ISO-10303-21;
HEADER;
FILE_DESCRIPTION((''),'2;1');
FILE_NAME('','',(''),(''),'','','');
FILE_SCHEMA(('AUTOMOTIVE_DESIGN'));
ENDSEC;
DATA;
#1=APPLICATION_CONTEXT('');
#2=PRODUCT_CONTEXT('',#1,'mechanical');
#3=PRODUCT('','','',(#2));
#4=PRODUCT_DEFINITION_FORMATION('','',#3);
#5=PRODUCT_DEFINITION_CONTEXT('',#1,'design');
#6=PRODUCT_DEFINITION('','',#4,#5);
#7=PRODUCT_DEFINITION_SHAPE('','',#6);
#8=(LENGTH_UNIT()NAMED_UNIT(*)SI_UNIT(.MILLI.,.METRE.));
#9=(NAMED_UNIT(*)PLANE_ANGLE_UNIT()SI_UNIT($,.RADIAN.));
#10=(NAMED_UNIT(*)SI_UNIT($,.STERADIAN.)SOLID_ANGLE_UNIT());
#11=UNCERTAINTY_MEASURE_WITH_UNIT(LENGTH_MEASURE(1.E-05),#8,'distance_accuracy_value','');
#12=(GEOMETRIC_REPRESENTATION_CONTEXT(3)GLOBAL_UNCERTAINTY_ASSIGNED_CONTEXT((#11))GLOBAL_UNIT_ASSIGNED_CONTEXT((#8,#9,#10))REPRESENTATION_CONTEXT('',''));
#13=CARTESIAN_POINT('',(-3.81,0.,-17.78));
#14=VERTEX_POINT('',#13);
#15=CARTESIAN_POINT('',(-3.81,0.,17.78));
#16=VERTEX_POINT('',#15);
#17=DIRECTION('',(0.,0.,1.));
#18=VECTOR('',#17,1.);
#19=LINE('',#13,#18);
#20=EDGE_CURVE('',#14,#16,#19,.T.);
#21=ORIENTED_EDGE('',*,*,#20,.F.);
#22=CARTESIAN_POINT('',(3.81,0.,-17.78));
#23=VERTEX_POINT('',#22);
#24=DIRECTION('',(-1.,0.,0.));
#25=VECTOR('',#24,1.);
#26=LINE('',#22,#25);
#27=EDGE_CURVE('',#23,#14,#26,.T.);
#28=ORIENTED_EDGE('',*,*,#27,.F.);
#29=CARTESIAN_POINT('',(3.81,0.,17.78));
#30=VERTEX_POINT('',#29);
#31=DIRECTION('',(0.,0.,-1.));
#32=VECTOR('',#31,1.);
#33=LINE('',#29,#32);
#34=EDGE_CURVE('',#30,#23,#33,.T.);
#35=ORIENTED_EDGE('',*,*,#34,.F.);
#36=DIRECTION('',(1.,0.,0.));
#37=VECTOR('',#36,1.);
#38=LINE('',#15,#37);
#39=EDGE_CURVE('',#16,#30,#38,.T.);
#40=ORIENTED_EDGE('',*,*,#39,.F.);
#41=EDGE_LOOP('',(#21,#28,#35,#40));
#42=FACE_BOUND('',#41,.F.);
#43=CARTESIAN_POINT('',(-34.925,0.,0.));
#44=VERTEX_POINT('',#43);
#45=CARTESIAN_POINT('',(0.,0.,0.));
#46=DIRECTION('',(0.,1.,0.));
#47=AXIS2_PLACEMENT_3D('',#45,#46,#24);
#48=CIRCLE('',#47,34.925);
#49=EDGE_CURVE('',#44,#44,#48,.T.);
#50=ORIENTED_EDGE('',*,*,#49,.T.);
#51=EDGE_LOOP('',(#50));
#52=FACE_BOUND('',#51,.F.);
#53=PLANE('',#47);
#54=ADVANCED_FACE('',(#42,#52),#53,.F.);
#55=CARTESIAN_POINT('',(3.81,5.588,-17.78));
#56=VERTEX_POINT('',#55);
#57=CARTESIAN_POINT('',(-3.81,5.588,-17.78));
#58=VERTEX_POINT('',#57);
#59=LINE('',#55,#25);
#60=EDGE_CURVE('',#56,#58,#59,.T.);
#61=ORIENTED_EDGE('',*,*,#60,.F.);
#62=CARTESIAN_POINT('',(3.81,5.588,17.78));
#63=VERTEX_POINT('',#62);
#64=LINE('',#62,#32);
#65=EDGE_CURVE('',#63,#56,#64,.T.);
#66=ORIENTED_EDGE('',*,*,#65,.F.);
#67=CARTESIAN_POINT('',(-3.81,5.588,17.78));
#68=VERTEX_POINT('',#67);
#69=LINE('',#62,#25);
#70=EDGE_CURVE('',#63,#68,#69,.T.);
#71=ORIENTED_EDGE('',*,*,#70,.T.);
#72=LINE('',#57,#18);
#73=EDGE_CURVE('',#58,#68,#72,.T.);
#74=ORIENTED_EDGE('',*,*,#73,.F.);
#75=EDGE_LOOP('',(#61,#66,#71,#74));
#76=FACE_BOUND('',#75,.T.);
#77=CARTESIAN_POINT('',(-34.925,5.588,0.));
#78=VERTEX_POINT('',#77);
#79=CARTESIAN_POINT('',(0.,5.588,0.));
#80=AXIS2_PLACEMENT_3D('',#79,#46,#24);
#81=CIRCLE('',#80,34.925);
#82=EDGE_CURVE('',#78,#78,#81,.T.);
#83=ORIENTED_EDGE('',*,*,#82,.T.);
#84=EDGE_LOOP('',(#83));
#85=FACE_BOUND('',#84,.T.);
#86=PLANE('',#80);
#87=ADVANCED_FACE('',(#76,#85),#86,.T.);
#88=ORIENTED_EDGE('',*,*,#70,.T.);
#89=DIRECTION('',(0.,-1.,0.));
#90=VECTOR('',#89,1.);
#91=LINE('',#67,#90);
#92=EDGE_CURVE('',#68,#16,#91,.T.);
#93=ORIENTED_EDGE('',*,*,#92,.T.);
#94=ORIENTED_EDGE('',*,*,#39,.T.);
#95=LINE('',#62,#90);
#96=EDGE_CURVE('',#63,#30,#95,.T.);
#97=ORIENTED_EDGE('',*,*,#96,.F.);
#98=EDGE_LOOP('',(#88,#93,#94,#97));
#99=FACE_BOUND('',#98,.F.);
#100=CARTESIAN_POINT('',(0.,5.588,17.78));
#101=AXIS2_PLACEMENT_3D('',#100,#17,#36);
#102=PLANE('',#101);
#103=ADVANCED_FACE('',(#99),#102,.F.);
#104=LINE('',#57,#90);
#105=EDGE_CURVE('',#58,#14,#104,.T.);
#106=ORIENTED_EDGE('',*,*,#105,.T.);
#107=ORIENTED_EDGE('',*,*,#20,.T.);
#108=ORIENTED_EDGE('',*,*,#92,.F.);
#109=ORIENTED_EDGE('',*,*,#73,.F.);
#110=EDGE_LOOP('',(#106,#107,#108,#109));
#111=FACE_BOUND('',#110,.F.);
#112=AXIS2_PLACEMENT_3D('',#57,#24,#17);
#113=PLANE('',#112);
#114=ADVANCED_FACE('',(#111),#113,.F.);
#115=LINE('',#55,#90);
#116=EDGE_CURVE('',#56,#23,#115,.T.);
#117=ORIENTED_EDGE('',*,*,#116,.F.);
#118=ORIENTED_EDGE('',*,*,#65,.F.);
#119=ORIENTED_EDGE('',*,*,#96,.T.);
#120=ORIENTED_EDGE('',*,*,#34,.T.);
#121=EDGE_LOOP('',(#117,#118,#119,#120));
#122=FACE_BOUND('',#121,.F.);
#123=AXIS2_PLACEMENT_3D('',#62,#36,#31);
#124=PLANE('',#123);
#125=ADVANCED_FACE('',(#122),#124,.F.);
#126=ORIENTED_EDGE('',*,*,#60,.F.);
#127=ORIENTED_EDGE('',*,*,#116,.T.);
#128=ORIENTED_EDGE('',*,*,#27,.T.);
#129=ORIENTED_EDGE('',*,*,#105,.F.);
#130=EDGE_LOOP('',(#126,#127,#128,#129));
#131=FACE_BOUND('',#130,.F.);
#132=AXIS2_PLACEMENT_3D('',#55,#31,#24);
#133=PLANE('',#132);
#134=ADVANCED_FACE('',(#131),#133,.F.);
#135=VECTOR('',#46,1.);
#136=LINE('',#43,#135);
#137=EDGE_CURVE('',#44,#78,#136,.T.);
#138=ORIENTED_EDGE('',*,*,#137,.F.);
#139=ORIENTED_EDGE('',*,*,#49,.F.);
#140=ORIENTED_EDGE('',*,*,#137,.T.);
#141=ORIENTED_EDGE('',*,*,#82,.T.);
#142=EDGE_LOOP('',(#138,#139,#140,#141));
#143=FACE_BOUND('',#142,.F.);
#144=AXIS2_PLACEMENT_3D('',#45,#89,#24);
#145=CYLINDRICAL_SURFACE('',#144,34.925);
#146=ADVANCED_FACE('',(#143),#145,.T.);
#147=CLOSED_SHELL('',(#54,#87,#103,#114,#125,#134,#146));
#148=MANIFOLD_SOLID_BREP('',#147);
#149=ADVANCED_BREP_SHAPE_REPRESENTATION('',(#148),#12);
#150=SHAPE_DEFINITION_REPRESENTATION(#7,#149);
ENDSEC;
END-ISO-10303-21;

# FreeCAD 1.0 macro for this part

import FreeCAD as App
import Part
import Sketcher
from FreeCAD import Vector
Q = App.Units.Quantity

doc = App.newDocument("Part")
body = doc.addObject("PartDesign::Body", "Body")

# Sketch on XZ plane
sketch1 = body.newObject("Sketcher::SketchObject", "Sketch")
sketch1.AttachmentSupport = (doc.getObject("XZ_Plane"), [""])
sketch1.MapMode = "FlatFace"
sketch1.addGeometry(Part.Circle(Vector(0, 0, 0), Vector(0, 0, 1), 35), False)
sketch1.addConstraint(Sketcher.Constraint("Coincident", 0, 3, -1, 1))
sketch1.addConstraint(Sketcher.Constraint("Diameter", 0, Q("2.75 in")))
pad1 = body.newObject("PartDesign::Pad", "Pad")
pad1.Profile = sketch1
pad1.Length = Q("0.22 in")
pad1.Reversed = True

# Sketch on XZ plane
sketch2 = body.newObject("Sketcher::SketchObject", "Sketch001")
sketch2.AttachmentSupport = (doc.getObject("XZ_Plane"), [""])
sketch2.MapMode = "FlatFace"
sketch2.AttachmentOffset = App.Placement(Vector(0, 0, -0.22 * 25.4), App.Rotation())
sketch2.addGeometry(Part.LineSegment(Vector(-4, 18, 0), Vector(4, 18, 0)), False)
sketch2.addGeometry(Part.LineSegment(Vector(4, 18, 0), Vector(4, -18, 0)), False)
sketch2.addGeometry(Part.LineSegment(Vector(4, -18, 0), Vector(-4, -18, 0)), False)
sketch2.addGeometry(Part.LineSegment(Vector(-4, -18, 0), Vector(-4, 18, 0)), False)
sketch2.addConstraint(Sketcher.Constraint("Coincident", 0, 2, 1, 1))
sketch2.addConstraint(Sketcher.Constraint("Coincident", 1, 2, 2, 1))
sketch2.addConstraint(Sketcher.Constraint("Coincident", 2, 2, 3, 1))
sketch2.addConstraint(Sketcher.Constraint("Coincident", 3, 2, 0, 1))
sketch2.addConstraint(Sketcher.Constraint("Horizontal", 0))
sketch2.addConstraint(Sketcher.Constraint("Vertical", 1))
sketch2.addConstraint(Sketcher.Constraint("Horizontal", 2))
sketch2.addConstraint(Sketcher.Constraint("Vertical", 3))
sketch2.addConstraint(Sketcher.Constraint("Symmetric", 0, 2, 2, 2, -1, 1))
sketch2.addConstraint(Sketcher.Constraint("DistanceX", 0, 1, 0, 2, Q("0.3 in")))
sketch2.addConstraint(Sketcher.Constraint("DistanceY", 1, 2, 1, 1, Q("1.4 in")))
pocket1 = body.newObject("PartDesign::Pocket", "Pocket")
pocket1.Profile = sketch2
pocket1.Length = Q("0.22 in")
pocket1.Reversed = True

doc.recompute()
